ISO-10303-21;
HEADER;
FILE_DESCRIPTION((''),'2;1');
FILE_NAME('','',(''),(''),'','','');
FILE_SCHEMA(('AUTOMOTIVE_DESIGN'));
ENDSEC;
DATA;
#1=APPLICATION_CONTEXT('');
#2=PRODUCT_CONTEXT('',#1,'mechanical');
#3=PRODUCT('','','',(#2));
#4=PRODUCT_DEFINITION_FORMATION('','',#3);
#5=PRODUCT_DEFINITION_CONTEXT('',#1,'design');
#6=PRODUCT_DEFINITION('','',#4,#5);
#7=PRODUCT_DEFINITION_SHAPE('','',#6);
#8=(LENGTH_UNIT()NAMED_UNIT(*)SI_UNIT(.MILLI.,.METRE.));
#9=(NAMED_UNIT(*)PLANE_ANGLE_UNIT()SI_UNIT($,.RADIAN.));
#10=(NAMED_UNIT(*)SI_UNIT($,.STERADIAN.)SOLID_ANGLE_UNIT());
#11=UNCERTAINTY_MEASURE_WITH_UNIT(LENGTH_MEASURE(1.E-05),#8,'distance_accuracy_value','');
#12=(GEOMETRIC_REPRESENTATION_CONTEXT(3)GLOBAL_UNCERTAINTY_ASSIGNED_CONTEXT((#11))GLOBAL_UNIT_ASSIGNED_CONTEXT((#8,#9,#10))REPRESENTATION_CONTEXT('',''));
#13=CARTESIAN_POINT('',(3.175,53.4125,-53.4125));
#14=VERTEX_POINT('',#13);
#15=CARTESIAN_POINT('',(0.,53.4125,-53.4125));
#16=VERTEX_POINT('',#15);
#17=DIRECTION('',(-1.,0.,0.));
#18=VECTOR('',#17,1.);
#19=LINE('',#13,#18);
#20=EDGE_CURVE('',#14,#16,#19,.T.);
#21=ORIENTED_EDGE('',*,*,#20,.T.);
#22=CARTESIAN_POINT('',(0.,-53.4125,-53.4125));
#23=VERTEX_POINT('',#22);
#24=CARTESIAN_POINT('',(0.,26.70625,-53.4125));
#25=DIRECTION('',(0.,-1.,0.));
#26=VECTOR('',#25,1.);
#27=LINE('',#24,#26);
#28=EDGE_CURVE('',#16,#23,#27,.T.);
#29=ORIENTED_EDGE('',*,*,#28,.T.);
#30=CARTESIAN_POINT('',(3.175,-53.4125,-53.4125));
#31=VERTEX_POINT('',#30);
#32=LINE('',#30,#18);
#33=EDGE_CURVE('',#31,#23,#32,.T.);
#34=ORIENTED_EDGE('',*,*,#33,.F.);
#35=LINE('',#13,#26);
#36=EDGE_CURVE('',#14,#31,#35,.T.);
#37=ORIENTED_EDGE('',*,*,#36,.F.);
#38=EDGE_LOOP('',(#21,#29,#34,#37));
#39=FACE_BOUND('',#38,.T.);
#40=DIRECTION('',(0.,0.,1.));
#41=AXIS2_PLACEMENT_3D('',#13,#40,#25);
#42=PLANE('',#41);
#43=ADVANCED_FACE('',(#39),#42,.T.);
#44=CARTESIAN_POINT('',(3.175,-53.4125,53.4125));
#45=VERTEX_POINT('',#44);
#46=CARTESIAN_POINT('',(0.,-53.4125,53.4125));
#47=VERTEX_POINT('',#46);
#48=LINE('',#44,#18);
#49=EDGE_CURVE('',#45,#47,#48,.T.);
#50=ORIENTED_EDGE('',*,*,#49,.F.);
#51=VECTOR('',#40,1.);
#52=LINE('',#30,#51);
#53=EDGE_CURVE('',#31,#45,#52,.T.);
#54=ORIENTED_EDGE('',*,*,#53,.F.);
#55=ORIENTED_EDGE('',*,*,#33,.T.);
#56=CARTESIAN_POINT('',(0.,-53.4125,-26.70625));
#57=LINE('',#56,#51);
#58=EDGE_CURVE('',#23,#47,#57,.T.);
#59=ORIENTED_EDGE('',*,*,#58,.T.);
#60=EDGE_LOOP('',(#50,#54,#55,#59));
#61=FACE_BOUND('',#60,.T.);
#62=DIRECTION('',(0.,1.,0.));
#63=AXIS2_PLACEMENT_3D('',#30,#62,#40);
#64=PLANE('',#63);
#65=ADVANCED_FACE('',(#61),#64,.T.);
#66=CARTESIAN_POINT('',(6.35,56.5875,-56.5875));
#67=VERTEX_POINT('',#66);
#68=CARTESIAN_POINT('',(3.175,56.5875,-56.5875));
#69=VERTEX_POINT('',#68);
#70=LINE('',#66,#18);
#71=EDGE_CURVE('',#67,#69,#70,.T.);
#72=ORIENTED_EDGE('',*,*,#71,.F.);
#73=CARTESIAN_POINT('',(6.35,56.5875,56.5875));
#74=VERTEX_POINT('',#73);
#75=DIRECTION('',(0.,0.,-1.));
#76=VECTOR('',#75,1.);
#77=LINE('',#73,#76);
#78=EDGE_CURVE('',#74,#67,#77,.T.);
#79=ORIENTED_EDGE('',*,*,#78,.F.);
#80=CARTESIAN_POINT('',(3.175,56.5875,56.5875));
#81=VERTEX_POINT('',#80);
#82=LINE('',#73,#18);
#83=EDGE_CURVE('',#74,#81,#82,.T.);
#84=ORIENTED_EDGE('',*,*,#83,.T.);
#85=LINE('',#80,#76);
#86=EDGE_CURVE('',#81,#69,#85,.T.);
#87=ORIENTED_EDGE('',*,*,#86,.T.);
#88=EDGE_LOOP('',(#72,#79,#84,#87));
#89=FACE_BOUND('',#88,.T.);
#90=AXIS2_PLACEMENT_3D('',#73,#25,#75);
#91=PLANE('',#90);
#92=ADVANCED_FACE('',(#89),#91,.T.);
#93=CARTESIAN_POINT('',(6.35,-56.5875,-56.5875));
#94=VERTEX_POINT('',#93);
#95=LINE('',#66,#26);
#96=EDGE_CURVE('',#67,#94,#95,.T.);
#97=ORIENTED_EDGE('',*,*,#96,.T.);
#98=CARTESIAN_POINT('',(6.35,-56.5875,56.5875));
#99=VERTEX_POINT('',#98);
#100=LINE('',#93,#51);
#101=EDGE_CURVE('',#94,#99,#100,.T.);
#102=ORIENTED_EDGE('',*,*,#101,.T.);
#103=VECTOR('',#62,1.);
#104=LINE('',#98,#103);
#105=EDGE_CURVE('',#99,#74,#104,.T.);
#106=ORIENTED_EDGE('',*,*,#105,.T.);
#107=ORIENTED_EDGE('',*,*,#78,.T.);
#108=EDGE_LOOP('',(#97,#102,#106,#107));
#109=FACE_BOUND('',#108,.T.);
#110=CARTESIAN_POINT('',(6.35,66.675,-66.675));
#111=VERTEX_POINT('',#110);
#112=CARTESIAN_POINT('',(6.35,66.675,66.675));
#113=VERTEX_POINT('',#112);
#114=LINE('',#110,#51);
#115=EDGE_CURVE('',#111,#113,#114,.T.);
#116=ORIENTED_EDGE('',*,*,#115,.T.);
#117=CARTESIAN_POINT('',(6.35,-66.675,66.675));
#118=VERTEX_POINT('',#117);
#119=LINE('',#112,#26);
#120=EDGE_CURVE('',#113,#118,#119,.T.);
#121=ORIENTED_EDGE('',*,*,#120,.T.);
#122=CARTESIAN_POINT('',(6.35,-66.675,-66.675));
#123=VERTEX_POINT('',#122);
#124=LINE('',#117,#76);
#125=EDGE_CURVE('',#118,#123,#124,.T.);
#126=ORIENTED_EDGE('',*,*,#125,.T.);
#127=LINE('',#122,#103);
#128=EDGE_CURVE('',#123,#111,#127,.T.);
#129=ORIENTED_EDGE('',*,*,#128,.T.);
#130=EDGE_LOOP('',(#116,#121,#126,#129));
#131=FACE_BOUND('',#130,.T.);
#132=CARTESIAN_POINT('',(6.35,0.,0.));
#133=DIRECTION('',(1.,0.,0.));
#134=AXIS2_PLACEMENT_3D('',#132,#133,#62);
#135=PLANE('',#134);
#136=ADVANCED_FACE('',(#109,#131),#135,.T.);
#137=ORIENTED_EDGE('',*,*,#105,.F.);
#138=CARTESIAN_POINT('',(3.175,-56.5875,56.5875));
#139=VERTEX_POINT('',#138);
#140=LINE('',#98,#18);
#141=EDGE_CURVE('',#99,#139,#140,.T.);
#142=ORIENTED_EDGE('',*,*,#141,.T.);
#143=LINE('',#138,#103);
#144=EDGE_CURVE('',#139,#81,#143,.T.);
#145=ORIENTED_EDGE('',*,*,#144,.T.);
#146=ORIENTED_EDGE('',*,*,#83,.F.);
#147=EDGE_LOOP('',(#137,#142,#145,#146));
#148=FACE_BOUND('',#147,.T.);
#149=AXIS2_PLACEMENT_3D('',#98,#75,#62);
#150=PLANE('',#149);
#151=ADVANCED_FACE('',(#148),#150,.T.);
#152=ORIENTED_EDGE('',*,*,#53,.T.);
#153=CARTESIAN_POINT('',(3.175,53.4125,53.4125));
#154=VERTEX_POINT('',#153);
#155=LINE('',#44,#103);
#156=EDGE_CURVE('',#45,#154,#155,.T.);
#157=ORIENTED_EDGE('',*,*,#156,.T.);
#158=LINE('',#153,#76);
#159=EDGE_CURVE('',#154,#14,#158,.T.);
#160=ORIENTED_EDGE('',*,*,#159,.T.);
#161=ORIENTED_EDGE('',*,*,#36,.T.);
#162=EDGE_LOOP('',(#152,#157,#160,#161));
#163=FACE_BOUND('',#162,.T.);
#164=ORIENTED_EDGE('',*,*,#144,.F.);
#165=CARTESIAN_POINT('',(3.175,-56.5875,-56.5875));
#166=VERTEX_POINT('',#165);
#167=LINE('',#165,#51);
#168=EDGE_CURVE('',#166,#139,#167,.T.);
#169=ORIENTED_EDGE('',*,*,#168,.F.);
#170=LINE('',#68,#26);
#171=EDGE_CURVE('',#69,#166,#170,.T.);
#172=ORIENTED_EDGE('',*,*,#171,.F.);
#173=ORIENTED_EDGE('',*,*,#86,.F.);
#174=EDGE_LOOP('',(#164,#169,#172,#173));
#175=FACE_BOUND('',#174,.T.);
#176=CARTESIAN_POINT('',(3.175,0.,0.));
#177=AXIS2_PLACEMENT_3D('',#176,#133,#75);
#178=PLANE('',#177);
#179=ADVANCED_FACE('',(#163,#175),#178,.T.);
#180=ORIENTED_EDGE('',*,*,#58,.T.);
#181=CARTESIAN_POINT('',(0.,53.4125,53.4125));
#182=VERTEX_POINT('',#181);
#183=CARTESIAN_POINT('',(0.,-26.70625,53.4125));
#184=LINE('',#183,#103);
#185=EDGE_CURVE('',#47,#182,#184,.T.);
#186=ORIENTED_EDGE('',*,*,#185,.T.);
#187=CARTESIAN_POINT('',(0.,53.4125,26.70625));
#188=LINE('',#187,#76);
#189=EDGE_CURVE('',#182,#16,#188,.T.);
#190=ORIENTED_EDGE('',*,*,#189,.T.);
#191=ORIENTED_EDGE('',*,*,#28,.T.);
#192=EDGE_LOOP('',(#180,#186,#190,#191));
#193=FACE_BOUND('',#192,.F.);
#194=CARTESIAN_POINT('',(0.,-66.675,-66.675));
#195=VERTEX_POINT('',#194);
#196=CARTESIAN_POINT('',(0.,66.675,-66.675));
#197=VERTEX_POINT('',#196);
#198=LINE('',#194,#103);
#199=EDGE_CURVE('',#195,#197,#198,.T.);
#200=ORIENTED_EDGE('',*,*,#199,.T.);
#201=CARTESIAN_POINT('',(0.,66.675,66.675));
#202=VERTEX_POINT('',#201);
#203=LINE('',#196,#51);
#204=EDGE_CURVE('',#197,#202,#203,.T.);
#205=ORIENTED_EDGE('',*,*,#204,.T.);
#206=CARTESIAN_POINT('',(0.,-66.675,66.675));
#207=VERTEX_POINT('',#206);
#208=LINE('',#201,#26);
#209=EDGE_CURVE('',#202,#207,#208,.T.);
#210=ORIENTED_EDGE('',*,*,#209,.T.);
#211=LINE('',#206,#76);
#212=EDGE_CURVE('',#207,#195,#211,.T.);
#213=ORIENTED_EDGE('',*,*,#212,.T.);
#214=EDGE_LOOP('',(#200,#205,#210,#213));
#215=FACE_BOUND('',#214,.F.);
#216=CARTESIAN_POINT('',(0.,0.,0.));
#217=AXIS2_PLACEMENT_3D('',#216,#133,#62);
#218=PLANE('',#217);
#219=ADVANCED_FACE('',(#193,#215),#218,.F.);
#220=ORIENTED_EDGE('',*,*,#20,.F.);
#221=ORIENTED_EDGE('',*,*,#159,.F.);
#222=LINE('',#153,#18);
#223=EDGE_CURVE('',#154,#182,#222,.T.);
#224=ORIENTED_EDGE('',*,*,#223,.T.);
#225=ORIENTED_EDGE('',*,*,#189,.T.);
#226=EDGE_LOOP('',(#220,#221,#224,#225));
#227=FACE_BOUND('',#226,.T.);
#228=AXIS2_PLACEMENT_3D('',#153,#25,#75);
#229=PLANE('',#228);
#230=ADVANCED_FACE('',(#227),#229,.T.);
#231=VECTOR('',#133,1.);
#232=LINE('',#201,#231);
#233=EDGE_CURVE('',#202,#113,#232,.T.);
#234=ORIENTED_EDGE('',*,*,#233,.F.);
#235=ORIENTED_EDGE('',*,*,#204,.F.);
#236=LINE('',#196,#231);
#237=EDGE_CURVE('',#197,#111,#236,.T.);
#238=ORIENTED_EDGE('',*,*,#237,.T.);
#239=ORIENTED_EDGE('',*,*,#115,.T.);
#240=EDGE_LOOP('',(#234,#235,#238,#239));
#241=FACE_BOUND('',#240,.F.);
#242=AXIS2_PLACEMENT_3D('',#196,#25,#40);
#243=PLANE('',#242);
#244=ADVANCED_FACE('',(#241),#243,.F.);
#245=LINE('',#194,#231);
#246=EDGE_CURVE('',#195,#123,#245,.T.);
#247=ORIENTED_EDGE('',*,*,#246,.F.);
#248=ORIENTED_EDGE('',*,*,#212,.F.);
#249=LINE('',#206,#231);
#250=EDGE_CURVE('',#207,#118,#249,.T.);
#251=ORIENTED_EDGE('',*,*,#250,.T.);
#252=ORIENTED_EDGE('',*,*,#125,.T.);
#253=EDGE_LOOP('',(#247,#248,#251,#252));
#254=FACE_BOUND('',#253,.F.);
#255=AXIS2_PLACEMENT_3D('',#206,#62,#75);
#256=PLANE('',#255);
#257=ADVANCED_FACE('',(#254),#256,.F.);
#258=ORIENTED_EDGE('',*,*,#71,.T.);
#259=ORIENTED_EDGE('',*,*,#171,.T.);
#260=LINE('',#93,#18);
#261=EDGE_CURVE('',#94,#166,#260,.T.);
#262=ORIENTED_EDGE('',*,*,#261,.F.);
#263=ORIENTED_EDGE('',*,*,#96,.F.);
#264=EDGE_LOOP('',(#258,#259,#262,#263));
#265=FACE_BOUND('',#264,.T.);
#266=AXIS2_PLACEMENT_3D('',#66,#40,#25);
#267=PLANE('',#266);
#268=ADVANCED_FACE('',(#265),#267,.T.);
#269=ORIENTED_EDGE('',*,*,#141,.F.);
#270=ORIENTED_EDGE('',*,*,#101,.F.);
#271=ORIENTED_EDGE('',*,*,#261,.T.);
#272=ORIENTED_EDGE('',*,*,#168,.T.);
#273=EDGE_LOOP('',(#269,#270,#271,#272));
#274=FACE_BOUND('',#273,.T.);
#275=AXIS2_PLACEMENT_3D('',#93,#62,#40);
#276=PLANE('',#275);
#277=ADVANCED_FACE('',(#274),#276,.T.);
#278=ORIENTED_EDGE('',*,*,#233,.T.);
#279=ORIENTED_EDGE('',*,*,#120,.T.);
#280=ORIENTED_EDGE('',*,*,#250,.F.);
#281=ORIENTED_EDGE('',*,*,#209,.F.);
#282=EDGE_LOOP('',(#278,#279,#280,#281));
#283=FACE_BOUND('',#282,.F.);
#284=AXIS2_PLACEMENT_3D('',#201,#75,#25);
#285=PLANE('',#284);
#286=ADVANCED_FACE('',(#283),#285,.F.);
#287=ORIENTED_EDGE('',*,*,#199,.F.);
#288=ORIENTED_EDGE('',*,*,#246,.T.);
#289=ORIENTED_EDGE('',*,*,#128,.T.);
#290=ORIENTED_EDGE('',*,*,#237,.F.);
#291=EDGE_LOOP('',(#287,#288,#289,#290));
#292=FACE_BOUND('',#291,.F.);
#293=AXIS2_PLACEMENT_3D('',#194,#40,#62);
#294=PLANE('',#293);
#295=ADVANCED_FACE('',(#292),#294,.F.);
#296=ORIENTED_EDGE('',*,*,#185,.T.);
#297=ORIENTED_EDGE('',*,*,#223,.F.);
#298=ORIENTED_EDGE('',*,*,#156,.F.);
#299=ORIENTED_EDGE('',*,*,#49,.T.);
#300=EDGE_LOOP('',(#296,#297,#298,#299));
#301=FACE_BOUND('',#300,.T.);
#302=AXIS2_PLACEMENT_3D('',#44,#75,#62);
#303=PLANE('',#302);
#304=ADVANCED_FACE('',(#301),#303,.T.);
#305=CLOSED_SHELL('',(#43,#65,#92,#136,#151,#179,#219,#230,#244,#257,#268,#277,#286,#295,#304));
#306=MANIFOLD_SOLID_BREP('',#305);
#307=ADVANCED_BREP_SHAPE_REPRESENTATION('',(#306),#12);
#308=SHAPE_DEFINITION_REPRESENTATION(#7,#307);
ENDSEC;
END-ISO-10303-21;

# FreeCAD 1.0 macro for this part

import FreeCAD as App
import Part
import Sketcher

V = App.Vector
Q = App.Units.Quantity

doc = App.newDocument("Part")
body = doc.addObject("PartDesign::Body", "Body")

# Sketch on YZ plane
sketch1 = body.newObject("Sketcher::SketchObject", "Sketch")
sketch1.AttachmentSupport = (doc.getObject("YZ_Plane"), [""])
sketch1.MapMode = "FlatFace"
sketch1.addGeometry([
    Part.LineSegment(V(-67, 67, 0), V(-67, -67, 0)),
    Part.LineSegment(V(-67, -67, 0), V(67, -67, 0)),
    Part.LineSegment(V(67, -67, 0), V(67, 67, 0)),
    Part.LineSegment(V(67, 67, 0), V(-67, 67, 0)),
], False)
sketch1.addConstraint([
    Sketcher.Constraint("Coincident", 0, 2, 1, 1),
    Sketcher.Constraint("Coincident", 1, 2, 2, 1),
    Sketcher.Constraint("Coincident", 2, 2, 3, 1),
    Sketcher.Constraint("Coincident", 3, 2, 0, 1),
    Sketcher.Constraint("Vertical", 0),
    Sketcher.Constraint("Horizontal", 1),
    Sketcher.Constraint("Vertical", 2),
    Sketcher.Constraint("Horizontal", 3),
    Sketcher.Constraint("Symmetric", 0, 2, 2, 2, -1, 1),
    Sketcher.Constraint("Equal", 3, 0),
    Sketcher.Constraint("DistanceX", 1, 1, 1, 2, Q("5.25 in")),
])
pad1 = body.newObject("PartDesign::Pad", "Pad")
pad1.Profile = sketch1
pad1.Length = Q("0.25 in")

# Sketch on YZ plane
sketch2 = body.newObject("Sketcher::SketchObject", "Sketch001")
sketch2.AttachmentSupport = (doc.getObject("YZ_Plane"), [""])
sketch2.MapMode = "FlatFace"
sketch2.AttachmentOffset = App.Placement(V(0, 0, 0.25 * 25.4), App.Rotation())
sketch2.addGeometry([
    Part.LineSegment(V(-57, 57, 0), V(-57, -57, 0)),
    Part.LineSegment(V(-57, -57, 0), V(57, -57, 0)),
    Part.LineSegment(V(57, -57, 0), V(57, 57, 0)),
    Part.LineSegment(V(57, 57, 0), V(-57, 57, 0)),
], False)
sketch2.addConstraint([
    Sketcher.Constraint("Coincident", 0, 2, 1, 1),
    Sketcher.Constraint("Coincident", 1, 2, 2, 1),
    Sketcher.Constraint("Coincident", 2, 2, 3, 1),
    Sketcher.Constraint("Coincident", 3, 2, 0, 1),
    Sketcher.Constraint("Vertical", 0),
    Sketcher.Constraint("Horizontal", 1),
    Sketcher.Constraint("Vertical", 2),
    Sketcher.Constraint("Horizontal", 3),
    Sketcher.Constraint("Symmetric", 0, 2, 2, 2, -1, 1),
    Sketcher.Constraint("Equal", 3, 0),
    Sketcher.Constraint("DistanceX", 1, 1, 1, 2, Q("4.4557 in")),
])
pocket1 = body.newObject("PartDesign::Pocket", "Pocket")
pocket1.Profile = sketch2
pocket1.Length = Q("0.125 in")

# Sketch on YZ plane
sketch3 = body.newObject("Sketcher::SketchObject", "Sketch002")
sketch3.AttachmentSupport = (doc.getObject("YZ_Plane"), [""])
sketch3.MapMode = "FlatFace"
sketch3.AttachmentOffset = App.Placement(V(0, 0, 0.125 * 25.4), App.Rotation())
sketch3.addGeometry([
    Part.LineSegment(V(53, -53, 0), V(53, 53, 0)),
    Part.LineSegment(V(53, 53, 0), V(-53, 53, 0)),
    Part.LineSegment(V(-53, 53, 0), V(-53, -53, 0)),
    Part.LineSegment(V(-53, -53, 0), V(53, -53, 0)),
], False)
sketch3.addConstraint([
    Sketcher.Constraint("Coincident", 0, 2, 1, 1),
    Sketcher.Constraint("Coincident", 1, 2, 2, 1),
    Sketcher.Constraint("Coincident", 2, 2, 3, 1),
    Sketcher.Constraint("Coincident", 3, 2, 0, 1),
    Sketcher.Constraint("Vertical", 0),
    Sketcher.Constraint("Horizontal", 1),
    Sketcher.Constraint("Vertical", 2),
    Sketcher.Constraint("Horizontal", 3),
    Sketcher.Constraint("Symmetric", 0, 2, 2, 2, -1, 1),
    Sketcher.Constraint("Equal", 3, 0),
    Sketcher.Constraint("DistanceX", 1, 2, 1, 1, Q("4.2057 in")),
])
pocket2 = body.newObject("PartDesign::Pocket", "Pocket001")
pocket2.Profile = sketch3
pocket2.Type = "ThroughAll"

doc.recompute()
